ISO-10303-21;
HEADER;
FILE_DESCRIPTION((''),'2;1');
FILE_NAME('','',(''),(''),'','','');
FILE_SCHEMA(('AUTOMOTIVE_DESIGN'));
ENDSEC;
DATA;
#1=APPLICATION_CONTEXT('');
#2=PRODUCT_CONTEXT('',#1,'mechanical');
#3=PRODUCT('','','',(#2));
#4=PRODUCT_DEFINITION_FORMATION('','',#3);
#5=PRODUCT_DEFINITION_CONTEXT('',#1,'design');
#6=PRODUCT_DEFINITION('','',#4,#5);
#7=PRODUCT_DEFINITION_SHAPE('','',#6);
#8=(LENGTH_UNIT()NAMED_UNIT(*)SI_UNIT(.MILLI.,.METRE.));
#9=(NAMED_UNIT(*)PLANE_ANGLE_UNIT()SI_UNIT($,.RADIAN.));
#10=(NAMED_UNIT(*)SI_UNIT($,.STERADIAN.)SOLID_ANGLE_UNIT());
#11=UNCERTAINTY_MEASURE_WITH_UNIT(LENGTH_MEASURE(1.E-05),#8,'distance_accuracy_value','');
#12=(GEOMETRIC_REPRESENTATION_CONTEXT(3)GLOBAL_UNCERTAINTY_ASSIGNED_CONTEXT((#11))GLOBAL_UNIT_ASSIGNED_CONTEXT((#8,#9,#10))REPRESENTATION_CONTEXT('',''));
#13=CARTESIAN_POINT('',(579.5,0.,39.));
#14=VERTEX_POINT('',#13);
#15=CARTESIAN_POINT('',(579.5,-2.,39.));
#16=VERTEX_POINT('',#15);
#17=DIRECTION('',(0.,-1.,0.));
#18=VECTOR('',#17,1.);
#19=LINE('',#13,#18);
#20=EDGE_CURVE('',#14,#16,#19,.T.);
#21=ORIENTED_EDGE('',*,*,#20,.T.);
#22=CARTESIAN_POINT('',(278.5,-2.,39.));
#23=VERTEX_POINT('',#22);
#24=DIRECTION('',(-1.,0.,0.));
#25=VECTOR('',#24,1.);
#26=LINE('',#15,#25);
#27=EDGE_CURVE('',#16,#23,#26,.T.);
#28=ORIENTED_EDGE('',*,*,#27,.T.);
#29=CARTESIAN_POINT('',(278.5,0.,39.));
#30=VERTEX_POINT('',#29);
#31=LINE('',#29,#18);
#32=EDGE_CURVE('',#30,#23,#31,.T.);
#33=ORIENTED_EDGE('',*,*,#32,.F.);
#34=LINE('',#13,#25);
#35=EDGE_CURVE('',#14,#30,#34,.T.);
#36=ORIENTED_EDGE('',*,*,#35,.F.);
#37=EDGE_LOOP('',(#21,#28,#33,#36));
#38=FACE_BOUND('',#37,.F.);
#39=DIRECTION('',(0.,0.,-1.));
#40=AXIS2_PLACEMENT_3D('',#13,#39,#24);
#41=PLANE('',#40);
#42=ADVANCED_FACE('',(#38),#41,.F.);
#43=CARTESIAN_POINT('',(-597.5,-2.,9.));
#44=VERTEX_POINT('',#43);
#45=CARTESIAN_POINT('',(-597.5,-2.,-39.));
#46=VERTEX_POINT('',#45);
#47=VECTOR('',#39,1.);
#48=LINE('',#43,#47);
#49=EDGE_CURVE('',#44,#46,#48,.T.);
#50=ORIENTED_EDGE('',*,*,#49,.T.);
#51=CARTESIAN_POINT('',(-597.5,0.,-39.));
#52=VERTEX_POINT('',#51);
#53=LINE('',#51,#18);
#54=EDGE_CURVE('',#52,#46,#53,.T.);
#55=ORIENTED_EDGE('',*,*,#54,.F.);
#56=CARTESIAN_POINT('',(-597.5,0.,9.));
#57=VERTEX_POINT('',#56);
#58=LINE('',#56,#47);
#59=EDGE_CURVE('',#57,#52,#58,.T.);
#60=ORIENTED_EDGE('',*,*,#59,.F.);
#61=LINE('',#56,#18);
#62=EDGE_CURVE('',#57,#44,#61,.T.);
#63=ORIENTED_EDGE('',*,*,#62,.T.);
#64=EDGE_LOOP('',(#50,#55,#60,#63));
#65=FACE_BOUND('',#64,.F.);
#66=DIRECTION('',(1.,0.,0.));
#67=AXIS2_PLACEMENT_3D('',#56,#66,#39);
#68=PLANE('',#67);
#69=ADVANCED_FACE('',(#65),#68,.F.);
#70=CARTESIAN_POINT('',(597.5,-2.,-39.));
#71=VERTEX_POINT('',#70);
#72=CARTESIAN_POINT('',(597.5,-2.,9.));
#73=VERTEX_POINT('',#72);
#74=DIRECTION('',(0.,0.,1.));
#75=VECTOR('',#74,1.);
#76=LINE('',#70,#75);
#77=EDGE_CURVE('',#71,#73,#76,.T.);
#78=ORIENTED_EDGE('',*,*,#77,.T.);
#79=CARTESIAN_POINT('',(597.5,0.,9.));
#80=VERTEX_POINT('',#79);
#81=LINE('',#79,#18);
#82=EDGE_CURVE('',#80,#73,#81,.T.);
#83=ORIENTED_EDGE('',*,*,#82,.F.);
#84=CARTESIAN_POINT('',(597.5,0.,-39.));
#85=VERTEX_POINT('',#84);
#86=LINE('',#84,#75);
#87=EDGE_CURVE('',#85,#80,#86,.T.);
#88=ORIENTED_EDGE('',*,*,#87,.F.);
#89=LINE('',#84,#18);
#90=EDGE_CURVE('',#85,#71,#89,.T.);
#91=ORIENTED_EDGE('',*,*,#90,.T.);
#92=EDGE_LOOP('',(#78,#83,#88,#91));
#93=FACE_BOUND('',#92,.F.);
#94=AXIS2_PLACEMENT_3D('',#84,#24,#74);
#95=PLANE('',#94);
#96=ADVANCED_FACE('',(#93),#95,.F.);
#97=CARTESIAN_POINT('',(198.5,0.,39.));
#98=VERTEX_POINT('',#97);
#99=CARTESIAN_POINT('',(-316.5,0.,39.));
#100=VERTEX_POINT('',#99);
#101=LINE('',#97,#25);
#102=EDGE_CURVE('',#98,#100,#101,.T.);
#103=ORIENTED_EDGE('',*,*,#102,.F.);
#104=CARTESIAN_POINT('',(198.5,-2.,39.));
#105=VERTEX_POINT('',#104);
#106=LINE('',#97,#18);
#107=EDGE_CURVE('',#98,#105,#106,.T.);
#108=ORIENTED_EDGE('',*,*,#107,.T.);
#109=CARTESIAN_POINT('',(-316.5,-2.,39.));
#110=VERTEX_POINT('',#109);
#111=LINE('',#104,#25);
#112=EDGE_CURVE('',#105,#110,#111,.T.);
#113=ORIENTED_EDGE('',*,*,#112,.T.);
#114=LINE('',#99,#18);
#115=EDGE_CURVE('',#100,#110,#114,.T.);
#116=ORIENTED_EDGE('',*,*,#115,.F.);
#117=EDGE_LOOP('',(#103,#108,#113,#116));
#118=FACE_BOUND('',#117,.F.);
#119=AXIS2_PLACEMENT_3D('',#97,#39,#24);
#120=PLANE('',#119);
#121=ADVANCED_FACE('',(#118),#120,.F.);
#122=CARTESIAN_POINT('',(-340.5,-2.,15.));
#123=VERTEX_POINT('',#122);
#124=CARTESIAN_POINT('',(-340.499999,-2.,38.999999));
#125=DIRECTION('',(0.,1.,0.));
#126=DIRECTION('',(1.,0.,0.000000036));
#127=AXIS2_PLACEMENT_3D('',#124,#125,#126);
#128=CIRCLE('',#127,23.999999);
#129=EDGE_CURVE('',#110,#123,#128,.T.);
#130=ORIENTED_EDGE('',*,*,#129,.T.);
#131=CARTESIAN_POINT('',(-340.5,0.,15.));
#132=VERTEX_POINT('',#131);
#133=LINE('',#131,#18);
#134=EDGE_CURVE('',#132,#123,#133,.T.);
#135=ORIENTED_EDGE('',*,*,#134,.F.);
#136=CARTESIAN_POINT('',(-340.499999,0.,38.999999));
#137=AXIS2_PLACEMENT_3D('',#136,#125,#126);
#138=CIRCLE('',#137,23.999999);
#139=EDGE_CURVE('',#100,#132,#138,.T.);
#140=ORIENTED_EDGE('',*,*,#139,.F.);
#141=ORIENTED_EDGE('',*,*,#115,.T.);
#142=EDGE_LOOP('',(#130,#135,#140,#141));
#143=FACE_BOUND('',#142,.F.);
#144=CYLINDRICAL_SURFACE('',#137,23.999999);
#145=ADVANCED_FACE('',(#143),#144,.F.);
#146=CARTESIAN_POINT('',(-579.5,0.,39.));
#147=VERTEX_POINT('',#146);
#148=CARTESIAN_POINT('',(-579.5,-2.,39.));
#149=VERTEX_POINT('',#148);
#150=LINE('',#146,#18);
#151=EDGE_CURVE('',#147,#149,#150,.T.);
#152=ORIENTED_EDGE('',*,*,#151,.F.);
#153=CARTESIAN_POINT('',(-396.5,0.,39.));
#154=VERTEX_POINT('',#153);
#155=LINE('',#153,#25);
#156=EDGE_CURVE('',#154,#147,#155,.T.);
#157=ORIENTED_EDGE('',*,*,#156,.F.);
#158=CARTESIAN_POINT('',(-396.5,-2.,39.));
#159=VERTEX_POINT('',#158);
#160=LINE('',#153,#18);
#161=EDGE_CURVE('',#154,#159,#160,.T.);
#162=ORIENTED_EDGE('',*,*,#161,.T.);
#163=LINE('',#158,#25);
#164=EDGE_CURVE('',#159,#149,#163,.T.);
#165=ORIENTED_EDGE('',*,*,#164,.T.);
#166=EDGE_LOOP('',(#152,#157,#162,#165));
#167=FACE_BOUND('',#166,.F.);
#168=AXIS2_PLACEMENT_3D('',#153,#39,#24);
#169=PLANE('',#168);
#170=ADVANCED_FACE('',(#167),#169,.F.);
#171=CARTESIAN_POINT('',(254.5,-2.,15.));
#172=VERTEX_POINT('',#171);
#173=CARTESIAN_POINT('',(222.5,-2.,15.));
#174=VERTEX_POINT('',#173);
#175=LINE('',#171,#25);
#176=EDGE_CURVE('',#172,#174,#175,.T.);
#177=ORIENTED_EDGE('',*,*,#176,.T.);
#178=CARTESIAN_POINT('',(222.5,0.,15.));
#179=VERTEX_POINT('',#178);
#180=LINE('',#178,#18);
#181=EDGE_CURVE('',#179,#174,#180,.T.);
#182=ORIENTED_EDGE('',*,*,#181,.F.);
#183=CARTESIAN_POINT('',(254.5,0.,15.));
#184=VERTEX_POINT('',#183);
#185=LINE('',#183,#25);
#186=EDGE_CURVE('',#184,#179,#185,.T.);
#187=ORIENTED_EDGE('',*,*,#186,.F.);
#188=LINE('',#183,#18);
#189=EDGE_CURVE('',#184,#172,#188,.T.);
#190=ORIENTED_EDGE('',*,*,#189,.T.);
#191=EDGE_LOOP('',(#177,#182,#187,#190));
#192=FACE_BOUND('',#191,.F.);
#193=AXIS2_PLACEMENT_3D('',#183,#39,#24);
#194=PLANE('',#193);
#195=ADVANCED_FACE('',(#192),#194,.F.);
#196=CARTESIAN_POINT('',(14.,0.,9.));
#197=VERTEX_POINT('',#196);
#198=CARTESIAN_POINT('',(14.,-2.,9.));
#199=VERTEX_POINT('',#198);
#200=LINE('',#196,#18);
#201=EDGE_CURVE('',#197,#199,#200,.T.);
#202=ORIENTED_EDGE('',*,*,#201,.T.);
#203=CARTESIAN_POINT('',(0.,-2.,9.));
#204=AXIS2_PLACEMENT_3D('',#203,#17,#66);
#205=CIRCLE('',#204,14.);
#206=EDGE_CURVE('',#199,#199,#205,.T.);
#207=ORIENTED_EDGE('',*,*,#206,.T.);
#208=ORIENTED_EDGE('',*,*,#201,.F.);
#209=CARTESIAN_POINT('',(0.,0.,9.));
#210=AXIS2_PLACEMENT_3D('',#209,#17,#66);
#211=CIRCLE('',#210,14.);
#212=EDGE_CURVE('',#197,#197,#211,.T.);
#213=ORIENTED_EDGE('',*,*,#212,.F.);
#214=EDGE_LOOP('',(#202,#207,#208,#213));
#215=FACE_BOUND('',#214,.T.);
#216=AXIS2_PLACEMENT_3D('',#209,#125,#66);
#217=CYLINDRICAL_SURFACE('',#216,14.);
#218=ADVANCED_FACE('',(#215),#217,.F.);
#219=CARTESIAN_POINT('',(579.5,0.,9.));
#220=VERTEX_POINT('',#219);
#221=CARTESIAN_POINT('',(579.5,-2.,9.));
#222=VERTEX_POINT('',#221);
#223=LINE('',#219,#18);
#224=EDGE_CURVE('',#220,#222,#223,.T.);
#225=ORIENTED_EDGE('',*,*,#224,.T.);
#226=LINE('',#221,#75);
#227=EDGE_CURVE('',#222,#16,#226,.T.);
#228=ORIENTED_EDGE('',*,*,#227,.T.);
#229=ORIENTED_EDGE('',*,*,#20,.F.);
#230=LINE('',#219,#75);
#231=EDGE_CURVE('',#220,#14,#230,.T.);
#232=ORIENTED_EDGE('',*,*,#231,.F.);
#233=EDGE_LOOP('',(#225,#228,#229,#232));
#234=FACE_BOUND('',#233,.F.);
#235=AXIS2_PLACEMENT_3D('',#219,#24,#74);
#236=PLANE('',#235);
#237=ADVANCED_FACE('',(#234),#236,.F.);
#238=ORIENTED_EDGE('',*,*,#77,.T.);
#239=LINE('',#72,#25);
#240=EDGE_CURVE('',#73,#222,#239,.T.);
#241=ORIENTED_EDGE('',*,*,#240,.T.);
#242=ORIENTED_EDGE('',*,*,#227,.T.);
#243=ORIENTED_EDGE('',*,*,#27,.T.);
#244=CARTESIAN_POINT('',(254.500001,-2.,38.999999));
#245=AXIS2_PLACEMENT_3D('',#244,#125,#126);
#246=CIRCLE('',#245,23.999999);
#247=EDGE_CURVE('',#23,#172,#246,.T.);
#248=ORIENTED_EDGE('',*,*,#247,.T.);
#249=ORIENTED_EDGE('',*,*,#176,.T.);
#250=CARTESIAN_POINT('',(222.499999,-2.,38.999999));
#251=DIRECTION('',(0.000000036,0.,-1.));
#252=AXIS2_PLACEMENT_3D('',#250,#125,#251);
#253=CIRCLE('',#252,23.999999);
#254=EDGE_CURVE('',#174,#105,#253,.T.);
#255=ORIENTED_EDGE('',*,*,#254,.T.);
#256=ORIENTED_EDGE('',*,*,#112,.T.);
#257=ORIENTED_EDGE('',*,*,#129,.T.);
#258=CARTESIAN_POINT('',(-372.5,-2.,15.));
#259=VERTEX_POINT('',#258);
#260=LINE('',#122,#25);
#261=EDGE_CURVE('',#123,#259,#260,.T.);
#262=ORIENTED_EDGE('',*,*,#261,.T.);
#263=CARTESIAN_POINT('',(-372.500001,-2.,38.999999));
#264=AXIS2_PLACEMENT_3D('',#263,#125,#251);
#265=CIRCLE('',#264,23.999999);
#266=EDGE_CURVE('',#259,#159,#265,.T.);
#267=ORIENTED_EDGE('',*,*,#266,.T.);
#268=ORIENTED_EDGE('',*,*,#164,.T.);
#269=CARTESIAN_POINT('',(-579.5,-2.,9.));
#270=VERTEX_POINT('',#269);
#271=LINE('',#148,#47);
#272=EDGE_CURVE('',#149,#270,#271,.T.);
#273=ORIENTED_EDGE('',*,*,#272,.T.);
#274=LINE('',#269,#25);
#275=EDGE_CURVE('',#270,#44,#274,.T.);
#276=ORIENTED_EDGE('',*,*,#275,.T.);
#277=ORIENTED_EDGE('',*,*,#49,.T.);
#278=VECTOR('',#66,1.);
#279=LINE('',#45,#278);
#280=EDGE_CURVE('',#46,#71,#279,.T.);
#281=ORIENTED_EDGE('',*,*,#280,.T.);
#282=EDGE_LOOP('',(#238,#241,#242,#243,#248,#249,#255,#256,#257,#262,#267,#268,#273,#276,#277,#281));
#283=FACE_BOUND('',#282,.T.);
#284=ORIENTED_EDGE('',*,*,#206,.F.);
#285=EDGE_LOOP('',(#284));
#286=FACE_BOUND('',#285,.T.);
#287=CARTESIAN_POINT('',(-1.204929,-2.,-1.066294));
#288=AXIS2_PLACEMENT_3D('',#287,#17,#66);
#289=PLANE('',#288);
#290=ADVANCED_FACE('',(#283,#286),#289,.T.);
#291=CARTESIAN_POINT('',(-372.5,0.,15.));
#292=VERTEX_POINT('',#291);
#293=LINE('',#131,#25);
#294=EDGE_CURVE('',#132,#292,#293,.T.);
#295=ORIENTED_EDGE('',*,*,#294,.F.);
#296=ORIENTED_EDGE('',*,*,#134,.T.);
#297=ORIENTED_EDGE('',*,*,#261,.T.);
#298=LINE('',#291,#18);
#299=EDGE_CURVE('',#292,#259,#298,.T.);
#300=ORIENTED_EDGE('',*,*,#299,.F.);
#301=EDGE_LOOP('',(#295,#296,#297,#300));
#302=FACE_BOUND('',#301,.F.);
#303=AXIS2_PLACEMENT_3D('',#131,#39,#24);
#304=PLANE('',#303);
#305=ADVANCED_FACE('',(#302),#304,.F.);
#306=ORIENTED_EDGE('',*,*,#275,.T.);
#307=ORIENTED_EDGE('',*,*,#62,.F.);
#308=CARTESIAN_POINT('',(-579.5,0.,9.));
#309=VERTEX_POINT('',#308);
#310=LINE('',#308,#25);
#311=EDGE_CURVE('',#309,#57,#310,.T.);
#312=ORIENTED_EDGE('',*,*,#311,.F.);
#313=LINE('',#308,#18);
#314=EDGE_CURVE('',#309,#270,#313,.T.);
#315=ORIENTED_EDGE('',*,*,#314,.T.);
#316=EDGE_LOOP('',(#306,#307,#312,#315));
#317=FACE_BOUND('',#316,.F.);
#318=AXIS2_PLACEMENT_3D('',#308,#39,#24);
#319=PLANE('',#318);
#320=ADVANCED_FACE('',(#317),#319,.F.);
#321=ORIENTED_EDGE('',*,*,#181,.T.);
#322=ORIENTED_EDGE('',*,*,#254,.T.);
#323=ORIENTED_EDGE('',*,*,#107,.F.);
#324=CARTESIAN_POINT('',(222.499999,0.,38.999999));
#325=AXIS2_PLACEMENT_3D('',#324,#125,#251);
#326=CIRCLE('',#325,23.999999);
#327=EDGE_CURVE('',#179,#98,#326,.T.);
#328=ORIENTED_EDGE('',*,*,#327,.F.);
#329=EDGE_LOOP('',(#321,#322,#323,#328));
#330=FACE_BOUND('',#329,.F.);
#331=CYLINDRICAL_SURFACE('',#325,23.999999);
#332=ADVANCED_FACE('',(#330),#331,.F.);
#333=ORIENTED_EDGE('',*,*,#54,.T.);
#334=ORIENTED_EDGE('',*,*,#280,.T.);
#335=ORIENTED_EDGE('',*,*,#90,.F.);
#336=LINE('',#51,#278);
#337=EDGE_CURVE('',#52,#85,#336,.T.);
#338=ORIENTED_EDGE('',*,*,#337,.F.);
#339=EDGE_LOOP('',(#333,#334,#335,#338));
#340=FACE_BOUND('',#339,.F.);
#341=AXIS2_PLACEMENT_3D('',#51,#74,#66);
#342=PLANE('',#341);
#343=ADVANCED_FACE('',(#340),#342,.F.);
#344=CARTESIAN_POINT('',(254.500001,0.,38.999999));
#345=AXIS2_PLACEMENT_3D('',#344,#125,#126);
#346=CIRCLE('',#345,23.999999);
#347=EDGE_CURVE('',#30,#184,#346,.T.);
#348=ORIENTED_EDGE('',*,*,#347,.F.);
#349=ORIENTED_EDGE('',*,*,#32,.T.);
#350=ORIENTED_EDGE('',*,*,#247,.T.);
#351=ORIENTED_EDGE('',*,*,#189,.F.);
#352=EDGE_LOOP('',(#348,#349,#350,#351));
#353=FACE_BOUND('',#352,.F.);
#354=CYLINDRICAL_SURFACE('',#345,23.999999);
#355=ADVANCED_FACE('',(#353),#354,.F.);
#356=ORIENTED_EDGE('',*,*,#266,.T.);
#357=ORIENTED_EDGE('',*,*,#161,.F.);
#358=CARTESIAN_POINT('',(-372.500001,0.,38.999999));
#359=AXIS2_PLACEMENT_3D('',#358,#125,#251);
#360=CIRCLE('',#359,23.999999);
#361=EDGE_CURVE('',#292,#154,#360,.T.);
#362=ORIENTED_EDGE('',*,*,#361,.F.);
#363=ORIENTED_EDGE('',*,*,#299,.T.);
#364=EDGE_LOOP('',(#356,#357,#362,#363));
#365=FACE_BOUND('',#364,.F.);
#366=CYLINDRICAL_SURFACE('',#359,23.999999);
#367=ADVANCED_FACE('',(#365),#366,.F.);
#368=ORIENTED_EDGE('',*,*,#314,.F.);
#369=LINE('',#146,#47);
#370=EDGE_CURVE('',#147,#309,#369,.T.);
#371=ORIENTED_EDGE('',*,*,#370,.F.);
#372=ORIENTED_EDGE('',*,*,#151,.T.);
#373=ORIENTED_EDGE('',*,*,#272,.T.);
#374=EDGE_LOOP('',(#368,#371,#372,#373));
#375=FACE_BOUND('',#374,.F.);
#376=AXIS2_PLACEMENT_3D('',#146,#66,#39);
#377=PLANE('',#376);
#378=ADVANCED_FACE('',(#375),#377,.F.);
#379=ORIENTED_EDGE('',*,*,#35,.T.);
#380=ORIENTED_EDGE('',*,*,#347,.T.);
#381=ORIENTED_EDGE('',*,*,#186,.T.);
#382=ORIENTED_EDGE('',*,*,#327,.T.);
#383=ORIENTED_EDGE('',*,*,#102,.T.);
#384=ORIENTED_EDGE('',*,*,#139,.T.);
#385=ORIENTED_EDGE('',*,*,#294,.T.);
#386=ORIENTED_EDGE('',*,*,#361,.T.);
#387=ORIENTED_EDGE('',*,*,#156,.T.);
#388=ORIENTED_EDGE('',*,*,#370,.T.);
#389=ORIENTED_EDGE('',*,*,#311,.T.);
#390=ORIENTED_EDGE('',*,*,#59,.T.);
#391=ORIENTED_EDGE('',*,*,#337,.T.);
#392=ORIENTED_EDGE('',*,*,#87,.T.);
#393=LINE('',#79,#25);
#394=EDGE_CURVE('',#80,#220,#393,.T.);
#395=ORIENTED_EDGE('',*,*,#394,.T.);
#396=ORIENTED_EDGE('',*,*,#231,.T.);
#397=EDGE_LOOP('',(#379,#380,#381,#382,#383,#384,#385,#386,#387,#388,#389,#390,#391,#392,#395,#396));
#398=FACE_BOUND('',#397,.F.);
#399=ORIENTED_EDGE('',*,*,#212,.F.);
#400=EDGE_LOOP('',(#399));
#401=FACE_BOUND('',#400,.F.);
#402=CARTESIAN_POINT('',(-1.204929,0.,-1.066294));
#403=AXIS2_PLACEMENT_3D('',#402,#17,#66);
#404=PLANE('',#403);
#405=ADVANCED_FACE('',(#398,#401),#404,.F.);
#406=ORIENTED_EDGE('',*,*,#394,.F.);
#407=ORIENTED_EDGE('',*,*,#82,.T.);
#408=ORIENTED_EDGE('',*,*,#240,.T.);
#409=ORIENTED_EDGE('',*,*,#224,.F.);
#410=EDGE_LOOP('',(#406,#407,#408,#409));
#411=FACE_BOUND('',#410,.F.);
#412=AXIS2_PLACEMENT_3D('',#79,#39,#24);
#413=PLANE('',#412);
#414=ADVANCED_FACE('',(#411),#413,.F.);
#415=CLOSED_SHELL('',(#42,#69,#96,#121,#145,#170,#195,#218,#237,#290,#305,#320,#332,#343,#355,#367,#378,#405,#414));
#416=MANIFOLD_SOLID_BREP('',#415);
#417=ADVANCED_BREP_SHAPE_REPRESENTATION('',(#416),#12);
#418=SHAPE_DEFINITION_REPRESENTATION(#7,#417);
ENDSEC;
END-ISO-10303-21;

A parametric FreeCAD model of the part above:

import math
import FreeCAD as App
import Part
import Sketcher
from FreeCAD import Vector
Q = App.Units.Quantity

doc = App.newDocument("Part")
params = doc.addObject("Spreadsheet::Sheet", "Params")
for row, (alias, value) in enumerate([
    ("sketch1_diameter", "28 mm"),
    ("sketch1_radius", "23.999999 mm"),
    ("sketch1_width", "1195 mm"),
    ("sketch1_width2", "18 mm"),
    ("sketch1_width3", "301 mm"),
    ("pad1_length", "2 mm"),
], start=1):
    params.set(f"A{row}", alias)
    params.set(f"B{row}", "=" + value)
    params.setAlias(f"B{row}", alias)

body = doc.addObject("PartDesign::Body", "Body")

# Sketch on XZ plane
sketch1 = body.newObject("Sketcher::SketchObject", "Sketch")
sketch1.AttachmentSupport = (doc.getObject("XZ_Plane"), [""])
sketch1.MapMode = "FlatFace"
sketch1.addGeometry([
    Part.LineSegment(Vector(-597.5, -39, 0), Vector(597.5, -39, 0)),  # 0
    Part.LineSegment(Vector(597.5, -39, 0), Vector(597.5, 9, 0)),  # 1
    Part.LineSegment(Vector(597.5, 9, 0), Vector(579.5, 9, 0)),  # 2
    Part.LineSegment(Vector(579.5, 9, 0), Vector(579.5, 39, 0)),  # 3
    Part.LineSegment(Vector(579.5, 39, 0), Vector(278.5, 39, 0)),  # 4
    Part.ArcOfCircle(Part.Circle(Vector(254.500001, 38.999999, 0), Vector(0, 0, 1), 23.999999), math.radians(-90.000002), math.radians(0.000002)),  # 5
    Part.LineSegment(Vector(254.5, 15, 0), Vector(222.5, 15, 0)),  # 6
    Part.ArcOfCircle(Part.Circle(Vector(222.499999, 38.999999, 0), Vector(0, 0, 1), 23.999999), math.radians(179.999998), math.radians(270.000002)),  # 7
    Part.LineSegment(Vector(198.5, 39, 0), Vector(-316.5, 39, 0)),  # 8
    Part.ArcOfCircle(Part.Circle(Vector(-340.499999, 38.999999, 0), Vector(0, 0, 1), 23.999999), math.radians(-90.000002), math.radians(0.000002)),  # 9
    Part.LineSegment(Vector(-340.5, 15, 0), Vector(-372.5, 15, 0)),  # 10
    Part.ArcOfCircle(Part.Circle(Vector(-372.500001, 38.999999, 0), Vector(0, 0, 1), 23.999999), math.radians(179.999998), math.radians(270.000002)),  # 11
    Part.LineSegment(Vector(-396.5, 39, 0), Vector(-579.5, 39, 0)),  # 12
    Part.LineSegment(Vector(-579.5, 39, 0), Vector(-579.5, 9, 0)),  # 13
    Part.LineSegment(Vector(-579.5, 9, 0), Vector(-597.5, 9, 0)),  # 14
    Part.LineSegment(Vector(-597.5, 9, 0), Vector(-597.5, -39, 0)),  # 15
    Part.Circle(Vector(0, 9, 0), Vector(0, 0, 1), 14),  # 16
], False)
sketch1.addConstraint([
    Sketcher.Constraint("Coincident", 0, 2, 1, 1),
    Sketcher.Constraint("Coincident", 1, 2, 2, 1),
    Sketcher.Constraint("Coincident", 2, 2, 3, 1),
    Sketcher.Constraint("Coincident", 3, 2, 4, 1),
    Sketcher.Constraint("Coincident", 4, 2, 5, 2),
    Sketcher.Constraint("Tangent", 5, 1, 6, 1),
    Sketcher.Constraint("Tangent", 6, 2, 7, 2),
    Sketcher.Constraint("Coincident", 7, 1, 8, 1),
    Sketcher.Constraint("Coincident", 8, 2, 9, 2),
    Sketcher.Constraint("Tangent", 9, 1, 10, 1),
    Sketcher.Constraint("Tangent", 10, 2, 11, 2),
    Sketcher.Constraint("Coincident", 11, 1, 12, 1),
    Sketcher.Constraint("Coincident", 12, 2, 13, 1),
    Sketcher.Constraint("Coincident", 13, 2, 14, 1),
    Sketcher.Constraint("Coincident", 14, 2, 15, 1),
    Sketcher.Constraint("Coincident", 15, 2, 0, 1),
    Sketcher.Constraint("Horizontal", 0),
    Sketcher.Constraint("Vertical", 1),
    Sketcher.Constraint("Horizontal", 2),
    Sketcher.Constraint("Vertical", 3),
    Sketcher.Constraint("Horizontal", 4),
    Sketcher.Constraint("Horizontal", 6),
    Sketcher.Constraint("Horizontal", 8),
    Sketcher.Constraint("Horizontal", 10),
    Sketcher.Constraint("Horizontal", 12),
    Sketcher.Constraint("Vertical", 13),
    Sketcher.Constraint("Horizontal", 14),
    Sketcher.Constraint("Vertical", 15),
    Sketcher.Constraint("Equal", 5, 7),
    Sketcher.Constraint("Equal", 7, 9),
    Sketcher.Constraint("Equal", 9, 11),
    Sketcher.Constraint("Symmetric", 3, 2, 12, 2, -2),
    Sketcher.Constraint("Symmetric", 1, 2, 14, 2, -2),
    Sketcher.Constraint("PointOnObject", 16, 3, -2),
    Sketcher.Constraint("Horizontal", 7, 3, 9, 3),
    Sketcher.Constraint("Horizontal", 16, 3, 1, 2),
    Sketcher.Constraint("Horizontal", 11, 3, 3, 2),
    Sketcher.Constraint("Horizontal", 4, 2, 7, 1),
    Sketcher.Constraint("Equal", 6, 10),
    Sketcher.Constraint("Diameter", 16, Q("28 mm")),
    Sketcher.Constraint("Radius", 5, Q("23.999999 mm")),
    Sketcher.Constraint("DistanceX", 0, 1, 0, 2, Q("1195 mm")),
    Sketcher.Constraint("DistanceX", 2, 2, 2, 1, Q("18 mm")),
    Sketcher.Constraint("DistanceX", 4, 2, 4, 1, Q("301 mm")),
    Sketcher.Constraint("DistanceX", 6, 2, 6, 1, Q("32 mm")),
    Sketcher.Constraint("DistanceX", 8, 2, 8, 1, Q("515 mm")),
    Sketcher.Constraint("DistanceY", 1, 1, 1, 2, Q("48 mm")),
    Sketcher.Constraint("DistanceY", 3, 1, 3, 2, Q("30 mm")),
    Sketcher.Constraint("DistanceY", -1, 1, 5, 3, Q("38.999999 mm")),
])
sketch1.setExpression("Constraints[39]", "Params.sketch1_diameter")
sketch1.setExpression("Constraints[40]", "Params.sketch1_radius")
sketch1.setExpression("Constraints[41]", "Params.sketch1_width")
sketch1.setExpression("Constraints[42]", "Params.sketch1_width2")
sketch1.setExpression("Constraints[43]", "Params.sketch1_width3")
pad1 = body.newObject("PartDesign::Pad", "Pad")
pad1.Profile = sketch1
pad1.setExpression("Length", "Params.pad1_length")

doc.recompute()
